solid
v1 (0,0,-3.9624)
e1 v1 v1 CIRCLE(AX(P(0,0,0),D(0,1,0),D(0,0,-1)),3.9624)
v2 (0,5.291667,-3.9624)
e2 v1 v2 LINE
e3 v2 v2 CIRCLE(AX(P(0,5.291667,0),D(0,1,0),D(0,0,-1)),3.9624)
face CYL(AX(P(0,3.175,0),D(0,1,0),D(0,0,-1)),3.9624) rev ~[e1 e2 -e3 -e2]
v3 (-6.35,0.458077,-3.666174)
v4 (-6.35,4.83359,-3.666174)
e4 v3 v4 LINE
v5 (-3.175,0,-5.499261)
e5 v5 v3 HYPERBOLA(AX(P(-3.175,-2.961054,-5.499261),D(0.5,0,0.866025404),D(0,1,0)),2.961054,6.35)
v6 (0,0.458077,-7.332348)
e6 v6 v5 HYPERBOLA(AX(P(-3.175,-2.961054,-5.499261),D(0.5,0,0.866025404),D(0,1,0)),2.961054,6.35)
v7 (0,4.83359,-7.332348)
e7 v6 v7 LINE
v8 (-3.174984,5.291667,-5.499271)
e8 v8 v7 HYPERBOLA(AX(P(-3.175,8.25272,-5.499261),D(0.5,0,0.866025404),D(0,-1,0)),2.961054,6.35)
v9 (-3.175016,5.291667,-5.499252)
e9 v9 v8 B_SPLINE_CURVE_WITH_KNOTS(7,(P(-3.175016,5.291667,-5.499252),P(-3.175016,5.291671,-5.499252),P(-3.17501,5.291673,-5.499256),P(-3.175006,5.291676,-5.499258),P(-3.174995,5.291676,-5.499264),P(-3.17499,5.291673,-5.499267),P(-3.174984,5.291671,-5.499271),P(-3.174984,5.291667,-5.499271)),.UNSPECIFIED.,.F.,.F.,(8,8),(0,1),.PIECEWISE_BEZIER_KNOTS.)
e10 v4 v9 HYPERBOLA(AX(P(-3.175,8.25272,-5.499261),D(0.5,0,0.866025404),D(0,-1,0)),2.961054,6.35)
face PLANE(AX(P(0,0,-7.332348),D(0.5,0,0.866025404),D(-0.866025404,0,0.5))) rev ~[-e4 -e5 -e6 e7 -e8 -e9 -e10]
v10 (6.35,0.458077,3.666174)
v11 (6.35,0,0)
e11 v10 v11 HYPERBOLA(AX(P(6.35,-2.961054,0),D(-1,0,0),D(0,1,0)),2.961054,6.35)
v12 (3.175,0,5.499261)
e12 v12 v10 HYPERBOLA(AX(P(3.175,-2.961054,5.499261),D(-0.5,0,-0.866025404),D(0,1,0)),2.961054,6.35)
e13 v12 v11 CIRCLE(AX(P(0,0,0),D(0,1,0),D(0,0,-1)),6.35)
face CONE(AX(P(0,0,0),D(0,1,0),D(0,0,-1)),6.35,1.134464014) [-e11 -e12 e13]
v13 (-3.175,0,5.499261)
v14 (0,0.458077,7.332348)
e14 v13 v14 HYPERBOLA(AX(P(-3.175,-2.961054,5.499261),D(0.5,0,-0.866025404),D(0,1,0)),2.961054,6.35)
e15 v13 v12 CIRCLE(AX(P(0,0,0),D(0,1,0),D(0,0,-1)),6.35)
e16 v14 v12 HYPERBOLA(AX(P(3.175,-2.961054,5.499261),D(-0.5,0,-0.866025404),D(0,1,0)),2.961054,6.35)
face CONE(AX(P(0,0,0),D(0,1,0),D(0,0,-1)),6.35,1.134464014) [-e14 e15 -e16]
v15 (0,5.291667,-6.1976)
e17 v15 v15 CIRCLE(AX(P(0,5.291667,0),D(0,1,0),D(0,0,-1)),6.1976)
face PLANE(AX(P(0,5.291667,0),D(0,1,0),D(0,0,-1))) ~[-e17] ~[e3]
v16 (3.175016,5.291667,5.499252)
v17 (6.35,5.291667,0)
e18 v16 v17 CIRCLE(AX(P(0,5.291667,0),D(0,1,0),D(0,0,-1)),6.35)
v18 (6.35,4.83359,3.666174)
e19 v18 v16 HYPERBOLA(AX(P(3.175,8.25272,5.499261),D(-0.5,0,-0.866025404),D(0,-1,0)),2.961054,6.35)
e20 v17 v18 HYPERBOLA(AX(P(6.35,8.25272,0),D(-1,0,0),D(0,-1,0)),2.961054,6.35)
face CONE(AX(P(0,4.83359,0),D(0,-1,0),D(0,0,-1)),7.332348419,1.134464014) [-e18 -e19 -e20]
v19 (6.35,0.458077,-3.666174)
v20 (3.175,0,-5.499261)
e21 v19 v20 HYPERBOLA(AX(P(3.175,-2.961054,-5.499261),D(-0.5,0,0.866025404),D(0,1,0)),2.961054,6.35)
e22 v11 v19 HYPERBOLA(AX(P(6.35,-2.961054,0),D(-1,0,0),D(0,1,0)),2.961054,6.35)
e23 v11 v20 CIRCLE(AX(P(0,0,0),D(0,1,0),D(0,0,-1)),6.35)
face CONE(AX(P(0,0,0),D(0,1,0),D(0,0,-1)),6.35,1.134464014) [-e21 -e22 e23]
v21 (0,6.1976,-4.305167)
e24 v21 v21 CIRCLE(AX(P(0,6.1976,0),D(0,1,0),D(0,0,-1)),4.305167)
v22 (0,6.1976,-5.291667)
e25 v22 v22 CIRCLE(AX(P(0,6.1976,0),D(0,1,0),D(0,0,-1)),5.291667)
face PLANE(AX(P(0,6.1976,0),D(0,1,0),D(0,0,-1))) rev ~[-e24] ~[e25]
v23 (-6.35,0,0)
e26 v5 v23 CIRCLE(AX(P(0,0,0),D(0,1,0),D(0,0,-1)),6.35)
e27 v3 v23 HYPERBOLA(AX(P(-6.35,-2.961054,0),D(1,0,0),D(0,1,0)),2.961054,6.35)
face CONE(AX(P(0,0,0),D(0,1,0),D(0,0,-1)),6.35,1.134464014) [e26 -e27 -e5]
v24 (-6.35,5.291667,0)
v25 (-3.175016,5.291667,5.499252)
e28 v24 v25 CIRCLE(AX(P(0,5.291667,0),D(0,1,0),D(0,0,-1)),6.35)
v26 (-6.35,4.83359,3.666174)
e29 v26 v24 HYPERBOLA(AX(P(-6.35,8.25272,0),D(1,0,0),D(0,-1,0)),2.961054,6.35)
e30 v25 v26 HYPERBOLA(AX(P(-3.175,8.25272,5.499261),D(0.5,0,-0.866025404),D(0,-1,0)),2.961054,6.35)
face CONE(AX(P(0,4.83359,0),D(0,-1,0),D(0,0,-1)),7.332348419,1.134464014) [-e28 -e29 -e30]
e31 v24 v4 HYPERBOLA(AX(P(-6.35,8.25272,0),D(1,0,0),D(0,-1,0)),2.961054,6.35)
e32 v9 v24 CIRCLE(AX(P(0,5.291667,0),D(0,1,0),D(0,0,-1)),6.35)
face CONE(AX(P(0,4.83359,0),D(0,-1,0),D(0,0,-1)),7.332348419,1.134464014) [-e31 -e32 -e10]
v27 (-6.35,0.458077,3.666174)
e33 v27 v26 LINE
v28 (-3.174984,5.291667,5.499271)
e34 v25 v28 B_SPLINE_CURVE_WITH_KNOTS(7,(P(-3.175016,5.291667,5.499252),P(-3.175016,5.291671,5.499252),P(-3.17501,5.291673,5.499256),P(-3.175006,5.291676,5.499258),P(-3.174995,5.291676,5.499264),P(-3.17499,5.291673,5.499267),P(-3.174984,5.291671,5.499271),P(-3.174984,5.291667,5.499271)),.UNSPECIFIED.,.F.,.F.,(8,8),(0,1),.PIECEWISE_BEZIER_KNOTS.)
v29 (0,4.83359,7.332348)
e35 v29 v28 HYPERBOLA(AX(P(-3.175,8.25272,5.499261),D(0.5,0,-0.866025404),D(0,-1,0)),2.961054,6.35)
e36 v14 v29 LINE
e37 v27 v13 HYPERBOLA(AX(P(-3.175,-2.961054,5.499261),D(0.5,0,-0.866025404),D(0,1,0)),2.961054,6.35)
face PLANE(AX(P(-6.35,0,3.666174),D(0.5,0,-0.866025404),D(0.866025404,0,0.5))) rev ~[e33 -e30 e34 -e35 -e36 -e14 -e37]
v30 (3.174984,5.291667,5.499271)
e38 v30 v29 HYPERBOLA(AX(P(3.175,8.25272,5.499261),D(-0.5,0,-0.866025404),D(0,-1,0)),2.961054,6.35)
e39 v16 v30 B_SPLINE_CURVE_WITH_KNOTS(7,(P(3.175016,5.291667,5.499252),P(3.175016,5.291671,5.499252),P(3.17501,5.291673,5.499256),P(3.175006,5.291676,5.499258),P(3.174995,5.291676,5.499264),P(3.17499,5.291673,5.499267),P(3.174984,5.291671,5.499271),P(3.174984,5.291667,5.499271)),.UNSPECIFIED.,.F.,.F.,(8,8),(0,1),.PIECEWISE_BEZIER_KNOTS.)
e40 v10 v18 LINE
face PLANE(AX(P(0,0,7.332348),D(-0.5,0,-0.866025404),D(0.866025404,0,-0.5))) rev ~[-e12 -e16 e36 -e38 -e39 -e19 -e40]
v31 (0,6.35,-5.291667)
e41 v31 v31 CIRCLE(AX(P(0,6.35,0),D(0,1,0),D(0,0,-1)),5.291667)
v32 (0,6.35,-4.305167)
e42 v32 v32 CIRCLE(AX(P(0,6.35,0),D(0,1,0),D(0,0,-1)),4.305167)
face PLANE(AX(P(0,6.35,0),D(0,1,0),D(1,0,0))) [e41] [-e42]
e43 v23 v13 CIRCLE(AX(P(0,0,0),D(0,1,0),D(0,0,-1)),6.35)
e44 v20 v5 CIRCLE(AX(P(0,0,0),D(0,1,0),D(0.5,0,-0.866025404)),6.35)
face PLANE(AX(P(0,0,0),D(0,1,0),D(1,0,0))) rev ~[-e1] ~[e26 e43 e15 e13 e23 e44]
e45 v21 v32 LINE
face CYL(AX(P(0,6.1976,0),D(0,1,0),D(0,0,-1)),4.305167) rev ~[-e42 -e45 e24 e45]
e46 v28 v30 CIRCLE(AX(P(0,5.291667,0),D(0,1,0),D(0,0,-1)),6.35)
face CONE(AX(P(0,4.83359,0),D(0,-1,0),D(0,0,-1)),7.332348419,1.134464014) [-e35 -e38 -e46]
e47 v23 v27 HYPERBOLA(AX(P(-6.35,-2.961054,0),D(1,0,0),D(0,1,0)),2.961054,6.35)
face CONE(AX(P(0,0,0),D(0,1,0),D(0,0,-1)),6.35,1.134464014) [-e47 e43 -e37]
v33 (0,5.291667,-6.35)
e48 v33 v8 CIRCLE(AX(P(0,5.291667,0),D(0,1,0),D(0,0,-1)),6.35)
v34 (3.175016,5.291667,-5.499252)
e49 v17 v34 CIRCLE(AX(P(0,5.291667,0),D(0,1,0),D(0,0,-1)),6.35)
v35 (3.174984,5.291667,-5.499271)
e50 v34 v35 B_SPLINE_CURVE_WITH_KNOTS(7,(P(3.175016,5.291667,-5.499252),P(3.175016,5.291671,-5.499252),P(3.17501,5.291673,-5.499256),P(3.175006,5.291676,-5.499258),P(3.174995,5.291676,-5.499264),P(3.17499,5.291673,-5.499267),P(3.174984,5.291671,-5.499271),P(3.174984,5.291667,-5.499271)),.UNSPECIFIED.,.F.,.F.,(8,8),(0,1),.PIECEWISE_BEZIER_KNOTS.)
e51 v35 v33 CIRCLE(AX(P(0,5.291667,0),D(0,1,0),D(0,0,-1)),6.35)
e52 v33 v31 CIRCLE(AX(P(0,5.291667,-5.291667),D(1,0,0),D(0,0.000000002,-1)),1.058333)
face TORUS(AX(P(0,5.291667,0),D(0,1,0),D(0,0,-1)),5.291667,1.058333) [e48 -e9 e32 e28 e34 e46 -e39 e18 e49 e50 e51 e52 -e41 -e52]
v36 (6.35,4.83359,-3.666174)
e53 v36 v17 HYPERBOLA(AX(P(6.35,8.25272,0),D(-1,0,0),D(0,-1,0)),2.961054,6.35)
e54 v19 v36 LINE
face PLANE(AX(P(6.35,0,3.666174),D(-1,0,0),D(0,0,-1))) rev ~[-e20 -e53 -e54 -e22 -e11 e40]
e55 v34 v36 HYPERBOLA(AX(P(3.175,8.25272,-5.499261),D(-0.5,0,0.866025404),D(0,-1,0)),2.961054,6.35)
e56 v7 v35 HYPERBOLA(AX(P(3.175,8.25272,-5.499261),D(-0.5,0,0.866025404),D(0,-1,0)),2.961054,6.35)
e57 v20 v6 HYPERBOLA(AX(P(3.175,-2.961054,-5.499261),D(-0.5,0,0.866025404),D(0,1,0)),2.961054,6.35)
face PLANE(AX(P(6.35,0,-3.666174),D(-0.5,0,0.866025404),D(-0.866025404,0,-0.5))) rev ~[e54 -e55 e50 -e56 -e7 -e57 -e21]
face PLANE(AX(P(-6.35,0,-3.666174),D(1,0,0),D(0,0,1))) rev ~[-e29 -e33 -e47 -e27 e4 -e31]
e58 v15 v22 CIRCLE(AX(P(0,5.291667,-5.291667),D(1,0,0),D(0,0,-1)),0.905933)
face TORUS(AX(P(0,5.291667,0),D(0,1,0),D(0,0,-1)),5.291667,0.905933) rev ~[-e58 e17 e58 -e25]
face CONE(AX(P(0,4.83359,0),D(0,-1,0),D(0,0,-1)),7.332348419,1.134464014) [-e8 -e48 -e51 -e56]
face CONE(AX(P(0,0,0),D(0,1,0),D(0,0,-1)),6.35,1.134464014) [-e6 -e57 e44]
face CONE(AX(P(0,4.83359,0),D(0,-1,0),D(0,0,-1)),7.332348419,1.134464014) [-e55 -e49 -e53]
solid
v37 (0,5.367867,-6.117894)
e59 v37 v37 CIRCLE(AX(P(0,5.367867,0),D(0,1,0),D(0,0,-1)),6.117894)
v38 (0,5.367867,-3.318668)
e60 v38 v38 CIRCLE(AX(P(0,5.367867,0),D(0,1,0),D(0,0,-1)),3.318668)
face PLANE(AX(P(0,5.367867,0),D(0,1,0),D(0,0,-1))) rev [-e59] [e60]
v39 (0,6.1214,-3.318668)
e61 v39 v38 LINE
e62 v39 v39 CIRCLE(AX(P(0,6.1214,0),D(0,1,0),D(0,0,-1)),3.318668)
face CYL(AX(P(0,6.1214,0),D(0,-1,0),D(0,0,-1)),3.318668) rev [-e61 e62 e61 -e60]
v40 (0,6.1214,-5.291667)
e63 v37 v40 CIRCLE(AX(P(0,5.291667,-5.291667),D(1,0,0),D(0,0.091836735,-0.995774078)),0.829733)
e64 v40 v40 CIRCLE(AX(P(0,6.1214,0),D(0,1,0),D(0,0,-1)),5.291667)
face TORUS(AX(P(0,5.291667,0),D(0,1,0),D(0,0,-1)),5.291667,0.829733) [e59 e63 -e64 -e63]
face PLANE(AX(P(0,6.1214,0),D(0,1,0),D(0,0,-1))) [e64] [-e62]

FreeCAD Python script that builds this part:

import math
import FreeCAD as App
import Part
import Sketcher
Q = App.Units.Quantity


def add_polygon(sketch, points):
    """Adds a closed chain of lines whose ends are joined by coincident constraints."""
    first, n = sketch.GeometryCount, len(points)
    for a, b in zip(points, points[1:] + points[:1]):
        sketch.addGeometry(Part.LineSegment(App.Vector(*a, 0), App.Vector(*b, 0)), False)
    for i in range(n):
        sketch.addConstraint(Sketcher.Constraint("Coincident", first + i, 2, first + (i + 1) % n, 1))

doc = App.newDocument("Part")
params = doc.addObject("Spreadsheet::Sheet", "Params")
for row, (alias, value) in enumerate([
    ("pad1_length", "0.25 in"),
    ("sketch2_width", "0.25 in"),
    ("sketch2_height", "0.156 in"),
    ("revolution_angle", "360 deg"),
    ("sketch3_width", "0.05 in"),
    ("sketch3_width2", "0.35 in"),
    ("sketch3_height", "0.25 in"),
    ("groove_angle", "360 deg"),
    ("sketch4_width", "0.056 in"),
    ("sketch4_height", "0.244 in"),
    ("groove2_angle", "360 deg"),
    ("revolution2_angle", "360 deg"),
], start=1):
    params.set(f"A{row}", alias)
    params.set(f"B{row}", "=" + value)
    params.setAlias(f"B{row}", alias)

body = doc.addObject("PartDesign::Body", "Body")

# Sketch on XZ plane
sketch1 = doc.addObject("Sketcher::SketchObject", "Sketch")
body.addObject(sketch1)
sketch1.AttachmentSupport = (doc.XZ_Plane, [""])
sketch1.MapMode = "FlatFace"
add_polygon(sketch1, [(0, -7), (-6, -4), (-6, 4), (0, 7), (6, 4), (6, -4)])  # lines 0-5
sketch1.addConstraint([
    Sketcher.Constraint("Vertical", 1),
    Sketcher.Constraint("Vertical", 4),
    Sketcher.Constraint("Symmetric", 0, 2, 3, 2, -1, 1),
    Sketcher.Constraint("Symmetric", 2, 2, 5, 2, -1, 1),
    Sketcher.Constraint("PointOnObject", 2, 2, -2),
    Sketcher.Constraint("Parallel", 2, 5),
    Sketcher.Constraint("Horizontal", 1, 2, 3, 2),
    Sketcher.Constraint("Angle", 0, Q("150 deg")),
    Sketcher.Constraint("DistanceX", 1, 2, 3, 2, Q("0.5 in")),
    Sketcher.Constraint("DistanceY", 1, 1, 1, 2, 7.332348),
])
pad1 = doc.addObject("PartDesign::Pad", "Pad")
body.addObject(pad1)
pad1.Profile = sketch1
pad1.setExpression("Length", "Params.pad1_length")
pad1.Reversed = True
body2 = doc.addObject("PartDesign::Body", "Body001")

# Sketch on YZ plane
sketch2 = doc.addObject("Sketcher::SketchObject", "Sketch001")
body2.addObject(sketch2)
sketch2.AttachmentSupport = (doc.getObject("YZ_Plane001"), [""])
sketch2.MapMode = "FlatFace"
add_polygon(sketch2, [(6.3, 0), (0, 0), (0, -4), (6.3, -4)])  # lines 0-3
sketch2.addConstraint([
    Sketcher.Constraint("Horizontal", 0),
    Sketcher.Constraint("Vertical", 1),
    Sketcher.Constraint("Horizontal", 2),
    Sketcher.Constraint("Vertical", 3),
    Sketcher.Constraint("Coincident", 0, 2, -1, 1),
    Sketcher.Constraint("DistanceX", 0, 2, 0, 1, Q("0.25 in")),
    Sketcher.Constraint("DistanceY", 1, 2, 1, 1, Q("0.156 in")),
])
sketch2.setExpression("Constraints[9]", "Params.sketch2_width")
sketch2.setExpression("Constraints[10]", "Params.sketch2_height")
revolution = doc.addObject("PartDesign::Revolution", "Revolution")
body2.addObject(revolution)
revolution.Profile = sketch2
revolution.ReferenceAxis = (sketch2, ["H_Axis"])
revolution.setExpression("Angle", "Params.revolution_angle")
doc.recompute()

boolean = doc.addObject("PartDesign::Boolean", "Boolean")
body.addObject(boolean)
boolean.Type = "Cut"
boolean.addObjects([body2])

# Sketch on YZ plane
sketch3 = doc.addObject("Sketcher::SketchObject", "Sketch002")
body.addObject(sketch3)
sketch3.AttachmentSupport = (doc.YZ_Plane, [""])
sketch3.MapMode = "FlatFace"
sketch3.addGeometry([
    Part.LineSegment(App.Vector(0, -6.3, 0), App.Vector(0, 0, 0)),  # 0
    Part.LineSegment(App.Vector(0, 0, 0), App.Vector(-1.3, 0, 0)),  # 1
    Part.LineSegment(App.Vector(-1.3, 0, 0), App.Vector(-1.3, -8.6, 0)),  # 2
    Part.LineSegment(App.Vector(-1.3, -8.6, 0), App.Vector(7.6, -8.6, 0)),  # 3
    Part.LineSegment(App.Vector(7.6, -8.6, 0), App.Vector(7.6, -5.3, 0)),  # 4
    Part.LineSegment(App.Vector(7.6, -5.3, 0), App.Vector(6.3, -5.3, 0)),  # 5
    Part.ArcOfCircle(Part.Circle(App.Vector(5.3, -5.3, 0), App.Vector(0, 0, 1), 1.1), math.radians(-90), math.radians(0)),  # 6
    Part.LineSegment(App.Vector(5.3, -6.3, 0), App.Vector(4.8, -7.3, 0)),  # 7
    Part.LineSegment(App.Vector(4.8, -7.3, 0), App.Vector(0.5, -7.3, 0)),  # 8
    Part.LineSegment(App.Vector(0.5, -7.3, 0), App.Vector(0, -6.3, 0)),  # 9
], False)
sketch3.addConstraint([
    Sketcher.Constraint("Coincident", 0, 2, 1, 1),
    Sketcher.Constraint("Coincident", 1, 2, 2, 1),
    Sketcher.Constraint("Coincident", 2, 2, 3, 1),
    Sketcher.Constraint("Coincident", 3, 2, 4, 1),
    Sketcher.Constraint("Coincident", 4, 2, 5, 1),
    Sketcher.Constraint("Coincident", 5, 2, 6, 2),
    Sketcher.Constraint("Coincident", 6, 1, 7, 1),
    Sketcher.Constraint("Coincident", 7, 2, 8, 1),
    Sketcher.Constraint("Coincident", 8, 2, 9, 1),
    Sketcher.Constraint("Coincident", 9, 2, 0, 1),
    Sketcher.Constraint("Vertical", 0),
    Sketcher.Constraint("Horizontal", 1),
    Sketcher.Constraint("Vertical", 2),
    Sketcher.Constraint("Horizontal", 3),
    Sketcher.Constraint("Vertical", 4),
    Sketcher.Constraint("Horizontal", 5),
    Sketcher.Constraint("Horizontal", 8),
    Sketcher.Constraint("Coincident", 0, 2, -1, 1),
    Sketcher.Constraint("Horizontal", 6, 3, 4, 2),
    Sketcher.Constraint("Horizontal", 6, 1, 9, 2),
    Sketcher.Constraint("Equal", 1, 5),
    Sketcher.Constraint("Equal", 7, 9),
    Sketcher.Constraint("Angle", 7, Q("-115 deg")),
    Sketcher.Constraint("DistanceX", 1, 2, 1, 1, Q("0.05 in")),
    Sketcher.Constraint("DistanceX", 3, 1, 3, 2, Q("0.35 in")),
    Sketcher.Constraint("DistanceY", 0, 1, 0, 2, Q("0.25 in")),
    Sketcher.Constraint("DistanceY", 3, 2, 7, 2, Q("0.05 in")),
    Sketcher.Constraint("Radius", 6, 1.058333),
    Sketcher.Constraint("Distance", 7, 1.083902),
    Sketcher.Constraint("DistanceX", 8, 2, 8, 1, 4.375513),
])
sketch3.setExpression("Constraints[23]", "Params.sketch3_width")
sketch3.setExpression("Constraints[24]", "Params.sketch3_width2")
sketch3.setExpression("Constraints[25]", "Params.sketch3_height")
groove = doc.addObject("PartDesign::Groove", "Groove")
body.addObject(groove)
groove.Profile = sketch3
groove.ReferenceAxis = (sketch3, ["H_Axis"])
groove.setExpression("Angle", "Params.groove_angle")

# Sketch on YZ plane
sketch4 = doc.addObject("Sketcher::SketchObject", "Sketch003")
body.addObject(sketch4)
sketch4.AttachmentSupport = (doc.YZ_Plane, [""])
sketch4.MapMode = "FlatFace"
sketch4.addGeometry([
    Part.LineSegment(App.Vector(5.3, 0, 0), App.Vector(5.3, -6.2, 0)),  # 0
    Part.ArcOfCircle(Part.Circle(App.Vector(5.3, -5.3, 0), App.Vector(0, 0, 1), 0.9), math.radians(-90), math.radians(0)),  # 1
    Part.LineSegment(App.Vector(6.2, -5.3, 0), App.Vector(6.2, -4.3, 0)),  # 2
    Part.LineSegment(App.Vector(6.2, -4.3, 0), App.Vector(7.6, -4.3, 0)),  # 3
    Part.LineSegment(App.Vector(7.6, -4.3, 0), App.Vector(7.6, 0, 0)),  # 4
    Part.LineSegment(App.Vector(7.6, 0, 0), App.Vector(5.3, 0, 0)),  # 5
], False)
sketch4.addConstraint([
    Sketcher.Constraint("Coincident", 0, 2, 1, 1),
    Sketcher.Constraint("Tangent", 1, 2, 2, 1),
    Sketcher.Constraint("Coincident", 2, 2, 3, 1),
    Sketcher.Constraint("Coincident", 3, 2, 4, 1),
    Sketcher.Constraint("Coincident", 4, 2, 5, 1),
    Sketcher.Constraint("Coincident", 5, 2, 0, 1),
    Sketcher.Constraint("Vertical", 0),
    Sketcher.Constraint("Vertical", 2),
    Sketcher.Constraint("Horizontal", 3),
    Sketcher.Constraint("Vertical", 4),
    Sketcher.Constraint("Horizontal", 5),
    Sketcher.Constraint("PointOnObject", 4, 2, -1),
    Sketcher.Constraint("Vertical", 1, 3, 0, 2),
    Sketcher.Constraint("DistanceX", -1, 1, 3, 2, Q("0.3 in")),
    Sketcher.Constraint("DistanceX", 3, 1, 3, 2, Q("0.056 in")),
    Sketcher.Constraint("DistanceY", 0, 2, 0, 1, Q("0.244 in")),
    Sketcher.Constraint("DistanceY", 2, 1, 2, 2, 0.986499),
    Sketcher.Constraint("Radius", 1, 0.905933),
])
sketch4.setExpression("Constraints[14]", "Params.sketch4_width")
sketch4.setExpression("Constraints[15]", "Params.sketch4_height")
groove2 = doc.addObject("PartDesign::Groove", "Groove001")
body.addObject(groove2)
groove2.Profile = sketch4
groove2.ReferenceAxis = (sketch4, ["H_Axis"])
groove2.setExpression("Angle", "Params.groove2_angle")
body3 = doc.addObject("PartDesign::Body", "Body002")

# Sketch on YZ plane
sketch5 = doc.addObject("Sketcher::SketchObject", "Sketch004")
body3.addObject(sketch5)
sketch5.AttachmentSupport = (doc.getObject("YZ_Plane002"), [""])
sketch5.MapMode = "FlatFace"
sketch5.addGeometry([
    Part.LineSegment(App.Vector(5.4, -3.3, 0), App.Vector(5.4, -6.1, 0)),
    Part.ArcOfCircle(Part.Circle(App.Vector(5.3, -5.3, 0), App.Vector(0, 0, 1), 0.8), math.radians(-85), math.radians(0)),
    Part.LineSegment(App.Vector(6.1, -5.3, 0), App.Vector(6.1, -3.3, 0)),
    Part.LineSegment(App.Vector(6.1, -3.3, 0), App.Vector(5.4, -3.3, 0)),
], False)
sketch5.addConstraint([
    Sketcher.Constraint("Coincident", 0, 2, 1, 1),
    Sketcher.Constraint("Tangent", 1, 2, 2, 1),
    Sketcher.Constraint("Coincident", 2, 2, 3, 1),
    Sketcher.Constraint("Coincident", 3, 2, 0, 1),
    Sketcher.Constraint("Vertical", 0),
    Sketcher.Constraint("Vertical", 2),
    Sketcher.Constraint("Horizontal", 3),
    Sketcher.Constraint("DistanceX", -1, 1, 1, 2, Q("0.241 in")),
    Sketcher.Constraint("DistanceX", 1, 3, 0, 2, Q("0.003 in")),
    Sketcher.Constraint("DistanceY", 2, 1, 2, 2, 1.972998),
    Sketcher.Constraint("Radius", 1, 0.829733),
    Sketcher.Constraint("DistanceY", 2, 2, -1, 1, 3.318668),
])
revolution2 = doc.addObject("PartDesign::Revolution", "Revolution001")
body3.addObject(revolution2)
revolution2.Profile = sketch5
revolution2.ReferenceAxis = (sketch5, ["H_Axis"])
revolution2.setExpression("Angle", "Params.revolution2_angle")

doc.recompute()
